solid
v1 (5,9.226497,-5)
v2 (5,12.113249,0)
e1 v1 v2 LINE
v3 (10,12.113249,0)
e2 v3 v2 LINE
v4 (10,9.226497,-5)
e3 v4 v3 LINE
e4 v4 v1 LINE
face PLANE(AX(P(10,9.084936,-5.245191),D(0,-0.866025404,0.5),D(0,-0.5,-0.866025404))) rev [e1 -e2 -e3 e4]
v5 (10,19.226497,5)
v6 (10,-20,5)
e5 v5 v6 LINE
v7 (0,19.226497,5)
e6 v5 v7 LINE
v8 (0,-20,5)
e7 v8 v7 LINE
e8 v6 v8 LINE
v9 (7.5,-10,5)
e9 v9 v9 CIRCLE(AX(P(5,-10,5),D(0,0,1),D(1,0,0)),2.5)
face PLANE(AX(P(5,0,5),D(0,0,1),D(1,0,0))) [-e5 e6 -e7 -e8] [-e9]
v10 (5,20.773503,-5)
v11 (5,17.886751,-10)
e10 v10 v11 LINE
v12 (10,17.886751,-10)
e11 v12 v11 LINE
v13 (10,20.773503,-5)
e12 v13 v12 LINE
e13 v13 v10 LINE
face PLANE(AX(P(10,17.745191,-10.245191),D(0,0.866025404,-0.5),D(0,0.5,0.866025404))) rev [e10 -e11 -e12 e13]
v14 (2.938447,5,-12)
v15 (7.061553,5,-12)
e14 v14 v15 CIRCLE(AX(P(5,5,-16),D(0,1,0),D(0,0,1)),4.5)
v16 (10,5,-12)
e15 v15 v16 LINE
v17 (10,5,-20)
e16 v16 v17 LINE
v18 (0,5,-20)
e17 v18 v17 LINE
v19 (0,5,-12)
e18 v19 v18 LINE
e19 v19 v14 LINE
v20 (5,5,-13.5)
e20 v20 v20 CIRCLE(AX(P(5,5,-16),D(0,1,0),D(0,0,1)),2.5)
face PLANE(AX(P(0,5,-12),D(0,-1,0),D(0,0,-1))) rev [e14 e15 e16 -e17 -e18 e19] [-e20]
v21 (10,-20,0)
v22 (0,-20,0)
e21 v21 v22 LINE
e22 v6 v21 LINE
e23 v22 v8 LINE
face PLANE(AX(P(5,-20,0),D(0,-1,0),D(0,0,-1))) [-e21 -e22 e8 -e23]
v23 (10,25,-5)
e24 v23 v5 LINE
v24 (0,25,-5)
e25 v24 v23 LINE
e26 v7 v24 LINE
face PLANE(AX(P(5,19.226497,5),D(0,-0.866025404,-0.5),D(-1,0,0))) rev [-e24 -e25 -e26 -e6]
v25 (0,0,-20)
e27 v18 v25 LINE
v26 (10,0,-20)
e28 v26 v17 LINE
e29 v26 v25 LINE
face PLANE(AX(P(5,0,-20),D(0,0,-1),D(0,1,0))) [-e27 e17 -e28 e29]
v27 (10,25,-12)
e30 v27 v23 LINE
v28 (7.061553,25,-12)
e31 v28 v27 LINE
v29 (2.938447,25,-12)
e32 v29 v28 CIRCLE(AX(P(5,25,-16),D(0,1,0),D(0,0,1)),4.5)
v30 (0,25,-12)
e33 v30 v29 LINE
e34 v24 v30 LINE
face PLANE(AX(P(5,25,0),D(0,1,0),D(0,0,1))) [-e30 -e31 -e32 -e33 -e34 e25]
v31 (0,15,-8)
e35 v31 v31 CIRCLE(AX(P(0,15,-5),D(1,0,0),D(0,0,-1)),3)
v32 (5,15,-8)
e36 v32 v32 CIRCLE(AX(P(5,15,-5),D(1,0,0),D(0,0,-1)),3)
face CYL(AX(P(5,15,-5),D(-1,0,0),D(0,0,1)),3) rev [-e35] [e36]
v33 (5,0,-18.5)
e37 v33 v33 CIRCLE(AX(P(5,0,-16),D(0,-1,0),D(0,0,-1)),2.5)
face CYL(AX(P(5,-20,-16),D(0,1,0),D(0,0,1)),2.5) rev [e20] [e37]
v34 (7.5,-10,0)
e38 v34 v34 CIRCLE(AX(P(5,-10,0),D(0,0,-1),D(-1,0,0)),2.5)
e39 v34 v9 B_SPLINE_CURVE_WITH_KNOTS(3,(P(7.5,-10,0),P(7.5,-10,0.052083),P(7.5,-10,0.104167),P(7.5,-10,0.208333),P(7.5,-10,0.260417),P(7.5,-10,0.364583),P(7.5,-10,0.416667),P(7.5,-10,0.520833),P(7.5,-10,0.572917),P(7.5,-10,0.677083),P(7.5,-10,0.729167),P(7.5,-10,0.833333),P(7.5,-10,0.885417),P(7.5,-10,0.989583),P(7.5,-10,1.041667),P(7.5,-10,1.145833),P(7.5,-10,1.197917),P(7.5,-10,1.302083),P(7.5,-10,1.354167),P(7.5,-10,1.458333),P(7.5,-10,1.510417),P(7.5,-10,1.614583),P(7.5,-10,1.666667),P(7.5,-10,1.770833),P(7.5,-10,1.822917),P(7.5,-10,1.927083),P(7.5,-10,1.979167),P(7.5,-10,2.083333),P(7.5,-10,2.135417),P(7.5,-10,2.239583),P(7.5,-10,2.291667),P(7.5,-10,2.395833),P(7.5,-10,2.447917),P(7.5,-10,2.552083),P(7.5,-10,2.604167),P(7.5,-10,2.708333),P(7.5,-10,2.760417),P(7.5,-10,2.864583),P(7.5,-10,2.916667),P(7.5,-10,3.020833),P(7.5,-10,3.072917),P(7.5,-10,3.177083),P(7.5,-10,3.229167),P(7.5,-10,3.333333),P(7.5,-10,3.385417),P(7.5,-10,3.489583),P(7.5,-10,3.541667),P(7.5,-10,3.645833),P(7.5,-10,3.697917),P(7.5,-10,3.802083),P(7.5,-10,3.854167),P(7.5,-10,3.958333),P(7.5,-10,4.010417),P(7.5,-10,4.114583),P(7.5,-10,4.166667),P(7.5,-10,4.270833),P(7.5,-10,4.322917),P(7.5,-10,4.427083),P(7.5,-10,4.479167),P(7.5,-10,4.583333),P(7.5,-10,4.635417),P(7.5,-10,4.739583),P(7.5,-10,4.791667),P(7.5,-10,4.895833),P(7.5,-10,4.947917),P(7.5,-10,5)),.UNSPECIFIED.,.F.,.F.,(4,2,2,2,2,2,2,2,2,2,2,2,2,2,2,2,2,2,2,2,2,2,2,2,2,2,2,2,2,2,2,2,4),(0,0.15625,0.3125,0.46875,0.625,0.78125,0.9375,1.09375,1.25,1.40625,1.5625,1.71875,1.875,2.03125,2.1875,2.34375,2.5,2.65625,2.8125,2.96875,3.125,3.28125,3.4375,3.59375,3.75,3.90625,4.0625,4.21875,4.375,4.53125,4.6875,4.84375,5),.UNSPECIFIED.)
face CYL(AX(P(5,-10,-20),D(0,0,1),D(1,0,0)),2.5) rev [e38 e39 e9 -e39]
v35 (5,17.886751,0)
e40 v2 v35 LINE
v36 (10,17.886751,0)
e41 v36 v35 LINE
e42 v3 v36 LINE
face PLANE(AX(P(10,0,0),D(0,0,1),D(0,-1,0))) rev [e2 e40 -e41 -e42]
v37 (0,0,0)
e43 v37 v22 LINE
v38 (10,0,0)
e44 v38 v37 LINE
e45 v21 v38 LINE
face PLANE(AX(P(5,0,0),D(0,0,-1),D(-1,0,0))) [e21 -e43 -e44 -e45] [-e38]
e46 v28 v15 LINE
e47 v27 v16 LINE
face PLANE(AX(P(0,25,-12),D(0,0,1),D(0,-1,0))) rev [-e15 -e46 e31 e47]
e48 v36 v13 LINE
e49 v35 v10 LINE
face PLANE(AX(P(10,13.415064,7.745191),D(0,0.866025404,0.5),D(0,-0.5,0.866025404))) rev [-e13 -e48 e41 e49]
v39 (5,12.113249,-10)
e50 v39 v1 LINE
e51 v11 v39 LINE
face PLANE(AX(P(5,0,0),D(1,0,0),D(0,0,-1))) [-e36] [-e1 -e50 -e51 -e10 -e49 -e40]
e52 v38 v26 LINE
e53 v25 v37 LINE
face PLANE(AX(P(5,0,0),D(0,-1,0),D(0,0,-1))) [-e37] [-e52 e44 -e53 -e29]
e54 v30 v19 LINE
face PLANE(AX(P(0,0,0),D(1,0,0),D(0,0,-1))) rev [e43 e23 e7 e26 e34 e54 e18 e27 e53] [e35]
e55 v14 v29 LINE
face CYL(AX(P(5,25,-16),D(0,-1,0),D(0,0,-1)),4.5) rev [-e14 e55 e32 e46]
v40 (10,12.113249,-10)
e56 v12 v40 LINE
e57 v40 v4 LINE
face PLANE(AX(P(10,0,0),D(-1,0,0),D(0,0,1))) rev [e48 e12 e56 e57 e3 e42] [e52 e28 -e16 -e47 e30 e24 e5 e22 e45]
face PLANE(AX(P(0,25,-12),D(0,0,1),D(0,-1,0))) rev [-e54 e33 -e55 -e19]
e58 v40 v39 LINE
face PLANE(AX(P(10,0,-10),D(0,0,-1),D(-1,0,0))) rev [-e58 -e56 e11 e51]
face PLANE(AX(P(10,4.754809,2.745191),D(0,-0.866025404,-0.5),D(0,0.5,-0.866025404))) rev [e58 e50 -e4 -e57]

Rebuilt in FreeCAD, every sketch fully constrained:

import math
import FreeCAD as App
import Part
import Sketcher
from FreeCAD import Vector
Q = App.Units.Quantity


def edges_at(feature, points):
    """Names of the edges that pass closest to the given points."""
    edges = feature.Shape.Edges
    near = lambda p: min(range(len(edges)), key=lambda i: edges[i].distToShape(Part.Vertex(*p))[0])
    return sorted({f"Edge{near(p) + 1}" for p in points})

doc = App.newDocument("Part")
body = doc.addObject("PartDesign::Body", "Body")

# Sketch on YZ plane
sketch1 = body.newObject("Sketcher::SketchObject", "Sketch")
sketch1.AttachmentSupport = (doc.getObject("YZ_Plane"), [""])
sketch1.MapMode = "FlatFace"
sketch1.addGeometry(Part.LineSegment(Vector(0, 0, 0), Vector(0, -20, 0)), False)
sketch1.addGeometry(Part.LineSegment(Vector(0, -20, 0), Vector(25, -20, 0)), False)
sketch1.addGeometry(Part.LineSegment(Vector(25, -20, 0), Vector(25, 5, 0)), False)
sketch1.addGeometry(Part.LineSegment(Vector(25, 5, 0), Vector(-20, 5, 0)), False)
sketch1.addGeometry(Part.LineSegment(Vector(-20, 5, 0), Vector(-20, 0, 0)), False)
sketch1.addGeometry(Part.LineSegment(Vector(-20, 0, 0), Vector(0, 0, 0)), False)
sketch1.addGeometry(Part.Circle(Vector(15, -5, 0), Vector(0, 0, 1), 3), False)
sketch1.addConstraint(Sketcher.Constraint("Coincident", 0, 2, 1, 1))
sketch1.addConstraint(Sketcher.Constraint("Coincident", 1, 2, 2, 1))
sketch1.addConstraint(Sketcher.Constraint("Coincident", 2, 2, 3, 1))
sketch1.addConstraint(Sketcher.Constraint("Coincident", 3, 2, 4, 1))
sketch1.addConstraint(Sketcher.Constraint("Coincident", 4, 2, 5, 1))
sketch1.addConstraint(Sketcher.Constraint("Coincident", 5, 2, 0, 1))
sketch1.addConstraint(Sketcher.Constraint("Vertical", 0))
sketch1.addConstraint(Sketcher.Constraint("Horizontal", 1))
sketch1.addConstraint(Sketcher.Constraint("Vertical", 2))
sketch1.addConstraint(Sketcher.Constraint("Horizontal", 3))
sketch1.addConstraint(Sketcher.Constraint("Vertical", 4))
sketch1.addConstraint(Sketcher.Constraint("Horizontal", 5))
sketch1.addConstraint(Sketcher.Constraint("Coincident", 5, 2, -1, 1))
sketch1.addConstraint(Sketcher.Constraint("Equal", 5, 0))
sketch1.addConstraint(Sketcher.Constraint("Equal", 1, 2))
sketch1.addConstraint(Sketcher.Constraint("Diameter", 6, Q("6 mm")))
sketch1.addConstraint(Sketcher.Constraint("DistanceX", 1, 1, 1, 2, Q("25 mm")))
sketch1.addConstraint(Sketcher.Constraint("DistanceX", 3, 2, 3, 1, Q("45 mm")))
sketch1.addConstraint(Sketcher.Constraint("DistanceX", -1, 1, 6, 3, Q("15 mm")))
sketch1.addConstraint(Sketcher.Constraint("DistanceY", 6, 3, -1, 1, Q("5 mm")))
pad1 = body.newObject("PartDesign::Pad", "Pad")
pad1.Profile = sketch1
pad1.Length = 5

# Sketch on YZ plane
sketch2 = body.newObject("Sketcher::SketchObject", "Sketch001")
sketch2.AttachmentSupport = (doc.getObject("YZ_Plane"), [""])
sketch2.MapMode = "FlatFace"
sketch2.AttachmentOffset = App.Placement(Vector(0, 0, 5), App.Rotation())
sketch2.addGeometry(Part.LineSegment(Vector(0, 0, 0), Vector(0, -20, 0)), False)
sketch2.addGeometry(Part.LineSegment(Vector(0, -20, 0), Vector(25, -20, 0)), False)
sketch2.addGeometry(Part.LineSegment(Vector(25, -20, 0), Vector(25, 5, 0)), False)
sketch2.addGeometry(Part.LineSegment(Vector(25, 5, 0), Vector(-20, 5, 0)), False)
sketch2.addGeometry(Part.LineSegment(Vector(-20, 5, 0), Vector(-20, 0, 0)), False)
sketch2.addGeometry(Part.LineSegment(Vector(-20, 0, 0), Vector(0, 0, 0)), False)
sketch2.addGeometry(Part.LineSegment(Vector(18, -10, 0), Vector(12, -10, 0)), False)
sketch2.addGeometry(Part.LineSegment(Vector(12, -10, 0), Vector(9, -5, 0)), False)
sketch2.addGeometry(Part.LineSegment(Vector(9, -5, 0), Vector(12, 0, 0)), False)
sketch2.addGeometry(Part.LineSegment(Vector(12, 0, 0), Vector(18, 0, 0)), False)
sketch2.addGeometry(Part.LineSegment(Vector(18, 0, 0), Vector(21, -5, 0)), False)
sketch2.addGeometry(Part.LineSegment(Vector(21, -5, 0), Vector(18, -10, 0)), False)
sketch2.addConstraint(Sketcher.Constraint("Coincident", 0, 2, 1, 1))
sketch2.addConstraint(Sketcher.Constraint("Coincident", 1, 2, 2, 1))
sketch2.addConstraint(Sketcher.Constraint("Coincident", 2, 2, 3, 1))
sketch2.addConstraint(Sketcher.Constraint("Coincident", 3, 2, 4, 1))
sketch2.addConstraint(Sketcher.Constraint("Coincident", 4, 2, 5, 1))
sketch2.addConstraint(Sketcher.Constraint("Coincident", 5, 2, 0, 1))
sketch2.addConstraint(Sketcher.Constraint("Coincident", 6, 2, 7, 1))
sketch2.addConstraint(Sketcher.Constraint("Coincident", 7, 2, 8, 1))
sketch2.addConstraint(Sketcher.Constraint("Coincident", 8, 2, 9, 1))
sketch2.addConstraint(Sketcher.Constraint("Coincident", 9, 2, 10, 1))
sketch2.addConstraint(Sketcher.Constraint("Coincident", 10, 2, 11, 1))
sketch2.addConstraint(Sketcher.Constraint("Coincident", 11, 2, 6, 1))
sketch2.addConstraint(Sketcher.Constraint("Vertical", 0))
sketch2.addConstraint(Sketcher.Constraint("Horizontal", 1))
sketch2.addConstraint(Sketcher.Constraint("Vertical", 2))
sketch2.addConstraint(Sketcher.Constraint("Horizontal", 3))
sketch2.addConstraint(Sketcher.Constraint("Vertical", 4))
sketch2.addConstraint(Sketcher.Constraint("Horizontal", 5))
sketch2.addConstraint(Sketcher.Constraint("Horizontal", 6))
sketch2.addConstraint(Sketcher.Constraint("Horizontal", 9))
sketch2.addConstraint(Sketcher.Constraint("Coincident", 5, 2, -1, 1))
sketch2.addConstraint(Sketcher.Constraint("PointOnObject", 8, 2, -1))
sketch2.addConstraint(Sketcher.Constraint("Parallel", 7, 10))
sketch2.addConstraint(Sketcher.Constraint("Parallel", 8, 11))
sketch2.addConstraint(Sketcher.Constraint("Horizontal", 7, 2, 10, 2))
sketch2.addConstraint(Sketcher.Constraint("Vertical", 6, 2, 8, 2))
sketch2.addConstraint(Sketcher.Constraint("Vertical", 9, 2, 11, 2))
sketch2.addConstraint(Sketcher.Constraint("Equal", 5, 0))
sketch2.addConstraint(Sketcher.Constraint("Equal", 1, 2))
sketch2.addConstraint(Sketcher.Constraint("DistanceX", 1, 1, 1, 2, Q("25 mm")))
sketch2.addConstraint(Sketcher.Constraint("DistanceX", 3, 2, 3, 1, Q("45 mm")))
sketch2.addConstraint(Sketcher.Constraint("Angle", 7, Q("120 deg")))
sketch2.addConstraint(Sketcher.Constraint("DistanceY", 6, 2, -1, 1, Q("10 mm")))
sketch2.addConstraint(Sketcher.Constraint("DistanceX", 6, 2, 6, 1, Q("5.773503 mm")))
sketch2.addConstraint(Sketcher.Constraint("DistanceX", -1, 1, 6, 2, Q("12.113249 mm")))
pad2 = body.newObject("PartDesign::Pad", "Pad001")
pad2.Profile = sketch2
pad2.Length = 5

# Sketch on XY plane
sketch3 = body.newObject("Sketcher::SketchObject", "Sketch002")
sketch3.AttachmentSupport = (doc.getObject("XY_Plane"), [""])
sketch3.MapMode = "FlatFace"
sketch3.AttachmentOffset = App.Placement(Vector(0, 0, 5), App.Rotation())
sketch3.addGeometry(Part.Circle(Vector(5, -10, 0), Vector(0, 0, 1), 2.5), False)
sketch3.addConstraint(Sketcher.Constraint("Diameter", 0, Q("5 mm")))
sketch3.addConstraint(Sketcher.Constraint("DistanceX", -1, 1, 0, 3, Q("5 mm")))
sketch3.addConstraint(Sketcher.Constraint("DistanceY", 0, 3, -1, 1, Q("10 mm")))
pocket1 = body.newObject("PartDesign::Pocket", "Pocket")
pocket1.Profile = sketch3
pocket1.Type = "ThroughAll"
doc.recompute()

chamfer = body.newObject("PartDesign::Chamfer", "Chamfer")
chamfer.Base = (pocket1, edges_at(pocket1, [(5, 25, 5)]))
chamfer.ChamferType = "Two distances"
chamfer.Size = 10
chamfer.Size2 = 5.773503

# Sketch on YZ plane
sketch4 = body.newObject("Sketcher::SketchObject", "Sketch003")
sketch4.AttachmentSupport = (doc.getObject("YZ_Plane"), [""])
sketch4.MapMode = "FlatFace"
sketch4.AttachmentOffset = App.Placement(Vector(0, 0, 10), App.Rotation())
sketch4.addGeometry(Part.LineSegment(Vector(25, -12, 0), Vector(5, -12, 0)), False)
sketch4.addGeometry(Part.LineSegment(Vector(5, -12, 0), Vector(5, -20, 0)), False)
sketch4.addGeometry(Part.LineSegment(Vector(5, -20, 0), Vector(25, -20, 0)), False)
sketch4.addGeometry(Part.LineSegment(Vector(25, -20, 0), Vector(25, -12, 0)), False)
sketch4.addConstraint(Sketcher.Constraint("Coincident", 0, 2, 1, 1))
sketch4.addConstraint(Sketcher.Constraint("Coincident", 1, 2, 2, 1))
sketch4.addConstraint(Sketcher.Constraint("Coincident", 2, 2, 3, 1))
sketch4.addConstraint(Sketcher.Constraint("Coincident", 3, 2, 0, 1))
sketch4.addConstraint(Sketcher.Constraint("Horizontal", 0))
sketch4.addConstraint(Sketcher.Constraint("Vertical", 1))
sketch4.addConstraint(Sketcher.Constraint("Horizontal", 2))
sketch4.addConstraint(Sketcher.Constraint("Vertical", 3))
sketch4.addConstraint(Sketcher.Constraint("DistanceX", 0, 2, 0, 1, Q("20 mm")))
sketch4.addConstraint(Sketcher.Constraint("DistanceY", 1, 2, 1, 1, Q("8 mm")))
sketch4.addConstraint(Sketcher.Constraint("DistanceX", -1, 1, 0, 2, Q("5 mm")))
sketch4.addConstraint(Sketcher.Constraint("DistanceY", 0, 2, -1, 1, Q("12 mm")))
pocket2 = body.newObject("PartDesign::Pocket", "Pocket001")
pocket2.Profile = sketch4
pocket2.Type = "ThroughAll"

# Sketch on XZ plane
sketch5 = body.newObject("Sketcher::SketchObject", "Sketch004")
sketch5.AttachmentSupport = (doc.getObject("XZ_Plane"), [""])
sketch5.MapMode = "FlatFace"
sketch5.AttachmentOffset = App.Placement(Vector(0, 0, -5), App.Rotation())
sketch5.addGeometry(Part.Circle(Vector(5, -16, 0), Vector(0, 0, 1), 4.5), False)
sketch5.addConstraint(Sketcher.Constraint("Diameter", 0, Q("9 mm")))
sketch5.addConstraint(Sketcher.Constraint("DistanceX", -1, 1, 0, 3, Q("5 mm")))
sketch5.addConstraint(Sketcher.Constraint("DistanceY", 0, 3, -1, 1, Q("16 mm")))
pocket3 = body.newObject("PartDesign::Pocket", "Pocket002")
pocket3.Profile = sketch5
pocket3.Type = "ThroughAll"

# Sketch on XZ plane
sketch6 = body.newObject("Sketcher::SketchObject", "Sketch005")
sketch6.AttachmentSupport = (doc.getObject("XZ_Plane"), [""])
sketch6.MapMode = "FlatFace"
sketch6.AttachmentOffset = App.Placement(Vector(0, 0, -5), App.Rotation())
sketch6.addGeometry(Part.ArcOfCircle(Part.Circle(Vector(5, -16, 0), Vector(0, 0, 1), 2.5), math.radians(90), math.radians(270)), False)
sketch6.addGeometry(Part.ArcOfCircle(Part.Circle(Vector(5, -16, 0), Vector(0, 0, 1), 2.5), math.radians(0), math.radians(90)), False)
sketch6.addGeometry(Part.ArcOfCircle(Part.Circle(Vector(5, -16, 0), Vector(0, 0, 1), 2.5), math.radians(-90), math.radians(0)), False)
sketch6.addConstraint(Sketcher.Constraint("Tangent", 0, 1, 1, 2))
sketch6.addConstraint(Sketcher.Constraint("Tangent", 1, 1, 2, 2))
sketch6.addConstraint(Sketcher.Constraint("Tangent", 2, 1, 0, 2))
sketch6.addConstraint(Sketcher.Constraint("Horizontal", 2, 3, 1, 1))
sketch6.addConstraint(Sketcher.Constraint("Vertical", 2, 3, 0, 1))
sketch6.addConstraint(Sketcher.Constraint("Vertical", 0, 1, 2, 1))
sketch6.addConstraint(Sketcher.Constraint("Radius", 0, Q("2.5 mm")))
sketch6.addConstraint(Sketcher.Constraint("DistanceX", -1, 1, 0, 3, Q("5 mm")))
sketch6.addConstraint(Sketcher.Constraint("DistanceY", 0, 3, -1, 1, Q("16 mm")))
pocket4 = body.newObject("PartDesign::Pocket", "Pocket003")
pocket4.Profile = sketch6
pocket4.Type = "ThroughAll"
pocket4.Reversed = True

doc.recompute()
